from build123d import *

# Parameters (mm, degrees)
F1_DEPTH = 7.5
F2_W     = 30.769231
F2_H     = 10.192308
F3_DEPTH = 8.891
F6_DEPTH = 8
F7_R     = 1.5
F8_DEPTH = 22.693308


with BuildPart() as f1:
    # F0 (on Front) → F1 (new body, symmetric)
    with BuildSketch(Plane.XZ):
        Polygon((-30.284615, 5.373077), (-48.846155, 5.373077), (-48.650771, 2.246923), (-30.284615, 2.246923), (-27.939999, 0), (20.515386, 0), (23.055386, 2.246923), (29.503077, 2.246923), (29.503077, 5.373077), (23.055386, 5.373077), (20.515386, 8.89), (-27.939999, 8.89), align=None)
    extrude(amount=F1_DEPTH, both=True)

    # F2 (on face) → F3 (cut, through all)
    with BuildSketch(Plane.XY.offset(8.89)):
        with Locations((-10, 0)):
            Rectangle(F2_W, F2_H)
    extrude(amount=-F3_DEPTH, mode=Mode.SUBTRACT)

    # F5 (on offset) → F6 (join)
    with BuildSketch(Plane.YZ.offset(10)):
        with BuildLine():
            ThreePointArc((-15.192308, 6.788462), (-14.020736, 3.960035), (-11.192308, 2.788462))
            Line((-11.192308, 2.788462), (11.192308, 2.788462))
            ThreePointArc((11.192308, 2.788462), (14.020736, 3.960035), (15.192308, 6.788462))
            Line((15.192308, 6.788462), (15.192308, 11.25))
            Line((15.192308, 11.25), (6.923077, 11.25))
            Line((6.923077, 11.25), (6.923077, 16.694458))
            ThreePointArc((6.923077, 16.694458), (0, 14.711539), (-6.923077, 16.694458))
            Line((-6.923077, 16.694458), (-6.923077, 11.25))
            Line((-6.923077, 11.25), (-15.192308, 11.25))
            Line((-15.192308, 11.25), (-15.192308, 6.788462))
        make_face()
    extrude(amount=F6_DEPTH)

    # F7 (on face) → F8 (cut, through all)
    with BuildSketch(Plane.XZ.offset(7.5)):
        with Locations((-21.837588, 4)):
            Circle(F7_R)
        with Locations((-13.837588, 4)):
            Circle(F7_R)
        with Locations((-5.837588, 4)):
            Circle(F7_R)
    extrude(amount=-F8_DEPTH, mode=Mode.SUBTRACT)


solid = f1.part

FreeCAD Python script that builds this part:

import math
import FreeCAD as App
import Part
import Sketcher
from FreeCAD import Vector


def add_polygon(sketch, points):
    """Adds a closed chain of lines whose ends are joined by coincident constraints."""
    first, n = sketch.GeometryCount, len(points)
    for a, b in zip(points, points[1:] + points[:1]):
        sketch.addGeometry(Part.LineSegment(App.Vector(*a, 0), App.Vector(*b, 0)), False)
    for i in range(n):
        sketch.addConstraint(Sketcher.Constraint("Coincident", first + i, 2, first + (i + 1) % n, 1))

doc = App.newDocument("Part")
body = doc.addObject("PartDesign::Body", "Body")

# Sketch on XZ plane
sketch1 = doc.addObject("Sketcher::SketchObject", "Sketch")
body.addObject(sketch1)
sketch1.AttachmentSupport = (doc.XZ_Plane, [""])
sketch1.MapMode = "FlatFace"
add_polygon(sketch1, [(-30.3, 5.4), (-48.8, 5.4), (-48.7, 2.2), (-30.3, 2.2), (-27.9, 0), (20.5, 0), (23.1, 2.2), (29.5, 2.2), (29.5, 5.4), (23.1, 5.4), (20.5, 8.9), (-27.9, 8.9)])  # lines 0-11
sketch1.addConstraint([
    Sketcher.Constraint("Horizontal", 0),
    Sketcher.Constraint("Horizontal", 2),
    Sketcher.Constraint("Horizontal", 4),
    Sketcher.Constraint("Horizontal", 6),
    Sketcher.Constraint("Vertical", 7),
    Sketcher.Constraint("Horizontal", 8),
    Sketcher.Constraint("Horizontal", 10),
    Sketcher.Constraint("PointOnObject", 3, 2, -1),
    Sketcher.Constraint("Horizontal", 2, 2, 5, 2),
    Sketcher.Constraint("Horizontal", 0, 2, 7, 2),
    Sketcher.Constraint("Vertical", 5, 2, 8, 2),
    Sketcher.Constraint("Vertical", 4, 2, 9, 2),
    Sketcher.Constraint("Vertical", 3, 2, 10, 2),
    Sketcher.Constraint("Vertical", 2, 2, 11, 2),
    Sketcher.Constraint("DistanceX", 2, 2, 4, 2, 50.800001),
    Sketcher.Constraint("DistanceX", 3, 2, -1, 1, 27.939999),
    Sketcher.Constraint("DistanceY", -1, 1, 9, 2, 8.89),
    Sketcher.Constraint("DistanceX", 4, 2, 5, 2, 2.54),
    Sketcher.Constraint("DistanceX", 0, 2, 0, 1, 18.56154),
    Sketcher.Constraint("DistanceX", 6, 1, 6, 2, 6.447691),
    Sketcher.Constraint("DistanceX", 2, 1, 2, 2, 18.366156),
    Sketcher.Constraint("DistanceX", 4, 1, 4, 2, 48.455385),
    Sketcher.Constraint("DistanceY", 7, 1, 7, 2, 3.126154),
    Sketcher.Constraint("Distance", 3, 3.247443),
])
pad1 = doc.addObject("PartDesign::Pad", "Pad")
body.addObject(pad1)
pad1.Profile = sketch1
pad1.Length = 15
pad1.Midplane = True

# Sketch on XY plane
sketch2 = doc.addObject("Sketcher::SketchObject", "Sketch001")
body.addObject(sketch2)
sketch2.AttachmentSupport = (doc.XY_Plane, [""])
sketch2.MapMode = "FlatFace"
sketch2.AttachmentOffset = App.Placement(Vector(0, 0, 8.89), App.Rotation())
add_polygon(sketch2, [(-25, 5), (-25, -5), (5, -5), (5, 5)])  # lines 0-3
sketch2.addConstraint([
    Sketcher.Constraint("Vertical", 0),
    Sketcher.Constraint("Horizontal", 1),
    Sketcher.Constraint("Vertical", 2),
    Sketcher.Constraint("Horizontal", 3),
    Sketcher.Constraint("DistanceX", 1, 1, 1, 2, 30.769231),
    Sketcher.Constraint("DistanceY", 0, 2, 0, 1, 10.192308),
    Sketcher.Constraint("DistanceX", 0, 2, -1, 1, 25.384615),
    Sketcher.Constraint("DistanceY", 0, 2, -1, 1, 5.096154),
])
pocket1 = doc.addObject("PartDesign::Pocket", "Pocket")
body.addObject(pocket1)
pocket1.Profile = sketch2
pocket1.Type = "ThroughAll"

# Sketch on YZ plane
sketch3 = doc.addObject("Sketcher::SketchObject", "Sketch002")
body.addObject(sketch3)
sketch3.AttachmentSupport = (doc.YZ_Plane, [""])
sketch3.MapMode = "FlatFace"
sketch3.AttachmentOffset = App.Placement(Vector(0, 0, 10), App.Rotation())
sketch3.addGeometry([
    Part.ArcOfCircle(Part.Circle(Vector(-11.2, 6.8, 0), Vector(0, 0, 1), 4), math.radians(180), math.radians(270)),  # 0
    Part.LineSegment(Vector(-11.2, 2.8, 0), Vector(11.2, 2.8, 0)),  # 1
    Part.ArcOfCircle(Part.Circle(Vector(11.2, 6.8, 0), Vector(0, 0, 1), 4), math.radians(-90), math.radians(0)),  # 2
    Part.LineSegment(Vector(15.2, 6.8, 0), Vector(15.2, 11.2, 0)),  # 3
    Part.LineSegment(Vector(15.2, 11.2, 0), Vector(6.9, 11.2, 0)),  # 4
    Part.LineSegment(Vector(6.9, 11.2, 0), Vector(6.9, 16.7, 0)),  # 5
    Part.ArcOfCircle(Part.Circle(Vector(0, 27.8, 0), Vector(0, 0, 1), 13.1), math.radians(-122), math.radians(-58)),  # 6
    Part.LineSegment(Vector(-6.9, 16.7, 0), Vector(-6.9, 11.2, 0)),  # 7
    Part.LineSegment(Vector(-6.9, 11.2, 0), Vector(-15.2, 11.2, 0)),  # 8
    Part.LineSegment(Vector(-15.2, 11.2, 0), Vector(-15.2, 6.8, 0)),  # 9
], False)
sketch3.addConstraint([
    Sketcher.Constraint("Tangent", 0, 2, 1, 1),
    Sketcher.Constraint("Tangent", 1, 2, 2, 1),
    Sketcher.Constraint("Tangent", 2, 2, 3, 1),
    Sketcher.Constraint("Coincident", 3, 2, 4, 1),
    Sketcher.Constraint("Coincident", 4, 2, 5, 1),
    Sketcher.Constraint("Coincident", 5, 2, 6, 2),
    Sketcher.Constraint("Coincident", 6, 1, 7, 1),
    Sketcher.Constraint("Coincident", 7, 2, 8, 1),
    Sketcher.Constraint("Coincident", 8, 2, 9, 1),
    Sketcher.Constraint("Tangent", 9, 2, 0, 1),
    Sketcher.Constraint("Horizontal", 1),
    Sketcher.Constraint("Vertical", 3),
    Sketcher.Constraint("Horizontal", 4),
    Sketcher.Constraint("Vertical", 5),
    Sketcher.Constraint("Vertical", 7),
    Sketcher.Constraint("Horizontal", 8),
    Sketcher.Constraint("Vertical", 9),
    Sketcher.Constraint("Equal", 0, 2),
    Sketcher.Constraint("Symmetric", 5, 2, 6, 1, -2),
    Sketcher.Constraint("Symmetric", 3, 2, 8, 2, -2),
    Sketcher.Constraint("Radius", 0, 3.999999),
    Sketcher.Constraint("DistanceY", 0, 2, 6, 3, 25.000001),
    Sketcher.Constraint("DistanceY", -1, 1, 3, 2, 11.25),
    Sketcher.Constraint("Radius", 6, 13.076924),
    Sketcher.Constraint("DistanceX", 4, 2, 4, 1, 8.269231),
    Sketcher.Constraint("DistanceY", 5, 1, 5, 2, 5.444458),
    Sketcher.Constraint("DistanceX", 1, 1, 1, 2, 22.384616),
])
pad2 = doc.addObject("PartDesign::Pad", "Pad001")
body.addObject(pad2)
pad2.Profile = sketch3
pad2.Length = 8

# Sketch on XZ plane
sketch4 = doc.addObject("Sketcher::SketchObject", "Sketch003")
body.addObject(sketch4)
sketch4.AttachmentSupport = (doc.XZ_Plane, [""])
sketch4.MapMode = "FlatFace"
sketch4.AttachmentOffset = App.Placement(Vector(0, 0, 7.5), App.Rotation())
sketch4.addGeometry([
    Part.Circle(Vector(-21.8, 4, 0), Vector(0, 0, 1), 1.5),
    Part.Circle(Vector(-13.8, 4, 0), Vector(0, 0, 1), 1.5),
    Part.Circle(Vector(-5.8, 4, 0), Vector(0, 0, 1), 1.5),
], False)
sketch4.addConstraint([
    Sketcher.Constraint("Equal", 0, 1),
    Sketcher.Constraint("Equal", 1, 2),
    Sketcher.Constraint("Horizontal", 0, 3, 1, 3),
    Sketcher.Constraint("Horizontal", 1, 3, 2, 3),
    Sketcher.Constraint("Diameter", 0, 3.0),
    Sketcher.Constraint("DistanceY", -1, 1, 0, 3, 4.0),
    Sketcher.Constraint("DistanceX", 0, 3, 1, 3, 8.0),
    Sketcher.Constraint("DistanceX", 1, 3, 2, 3, 8.0),
    Sketcher.Constraint("DistanceX", 0, 3, -1, 1, 21.837588),
])
pocket2 = doc.addObject("PartDesign::Pocket", "Pocket001")
body.addObject(pocket2)
pocket2.Profile = sketch4
pocket2.Type = "ThroughAll"

doc.recompute()
